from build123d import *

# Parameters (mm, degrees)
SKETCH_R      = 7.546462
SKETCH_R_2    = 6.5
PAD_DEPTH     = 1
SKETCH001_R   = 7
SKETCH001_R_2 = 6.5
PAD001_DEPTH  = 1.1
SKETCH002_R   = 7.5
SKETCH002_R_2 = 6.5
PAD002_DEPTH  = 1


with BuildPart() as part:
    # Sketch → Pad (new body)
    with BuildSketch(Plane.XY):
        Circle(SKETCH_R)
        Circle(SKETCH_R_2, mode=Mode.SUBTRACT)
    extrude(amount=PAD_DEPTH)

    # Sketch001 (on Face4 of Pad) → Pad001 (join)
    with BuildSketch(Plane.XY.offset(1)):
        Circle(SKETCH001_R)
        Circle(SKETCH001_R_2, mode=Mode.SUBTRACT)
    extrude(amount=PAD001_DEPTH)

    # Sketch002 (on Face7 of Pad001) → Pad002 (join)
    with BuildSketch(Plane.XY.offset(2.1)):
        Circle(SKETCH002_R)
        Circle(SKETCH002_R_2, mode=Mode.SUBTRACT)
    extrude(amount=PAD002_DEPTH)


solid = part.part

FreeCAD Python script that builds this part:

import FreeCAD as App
import Part
import Sketcher

V = App.Vector
Q = App.Units.Quantity

doc = App.newDocument("Part")
body = doc.addObject("PartDesign::Body", "Body")

# Sketch on XY plane
sketch1 = body.newObject("Sketcher::SketchObject", "Sketch")
sketch1.AttachmentSupport = (doc.getObject("XY_Plane"), [""])
sketch1.MapMode = "FlatFace"
sketch1.addGeometry([
    Part.Circle(V(0, 0, 0), V(0, 0, 1), 7.546462),
    Part.Circle(V(0, 0, 0), V(0, 0, 1), 6.5),
], False)
sketch1.addConstraint([
    Sketcher.Constraint("Coincident", 0, 3, -1, 1),
    Sketcher.Constraint("Coincident", 1, 3, -1, 1),
    Sketcher.Constraint("Diameter", 1, Q("13 mm")),
    Sketcher.Constraint("Diameter", 0, Q("15.092924 mm")),
])
pad1 = body.newObject("PartDesign::Pad", "Pad")
pad1.Profile = sketch1
pad1.Length = 1

# Sketch on XY plane
sketch2 = body.newObject("Sketcher::SketchObject", "Sketch001")
sketch2.AttachmentSupport = (doc.getObject("XY_Plane"), [""])
sketch2.MapMode = "FlatFace"
sketch2.AttachmentOffset = App.Placement(V(0, 0, 1), App.Rotation())
sketch2.addGeometry([
    Part.Circle(V(0, 0, 0), V(0, 0, 1), 7),
    Part.Circle(V(0, 0, 0), V(0, 0, 1), 6.5),
], False)
sketch2.addConstraint([
    Sketcher.Constraint("Coincident", 0, 3, -1, 1),
    Sketcher.Constraint("Coincident", 1, 3, -1, 1),
    Sketcher.Constraint("Diameter", 0, Q("14 mm")),
    Sketcher.Constraint("Diameter", 1, Q("13 mm")),
])
pad2 = body.newObject("PartDesign::Pad", "Pad001")
pad2.Profile = sketch2
pad2.Length = 1.1

# Sketch on XY plane
sketch3 = body.newObject("Sketcher::SketchObject", "Sketch002")
sketch3.AttachmentSupport = (doc.getObject("XY_Plane"), [""])
sketch3.MapMode = "FlatFace"
sketch3.AttachmentOffset = App.Placement(V(0, 0, 2.1), App.Rotation())
sketch3.addGeometry([
    Part.Circle(V(0, 0, 0), V(0, 0, 1), 7.5),
    Part.Circle(V(0, 0, 0), V(0, 0, 1), 6.5),
], False)
sketch3.addConstraint([
    Sketcher.Constraint("Coincident", 0, 3, -1, 1),
    Sketcher.Constraint("Coincident", 1, 3, -1, 1),
    Sketcher.Constraint("Diameter", 0, Q("15 mm")),
    Sketcher.Constraint("Diameter", 1, Q("13 mm")),
])
pad3 = body.newObject("PartDesign::Pad", "Pad002")
pad3.Profile = sketch3
pad3.Length = 1

doc.recompute()
